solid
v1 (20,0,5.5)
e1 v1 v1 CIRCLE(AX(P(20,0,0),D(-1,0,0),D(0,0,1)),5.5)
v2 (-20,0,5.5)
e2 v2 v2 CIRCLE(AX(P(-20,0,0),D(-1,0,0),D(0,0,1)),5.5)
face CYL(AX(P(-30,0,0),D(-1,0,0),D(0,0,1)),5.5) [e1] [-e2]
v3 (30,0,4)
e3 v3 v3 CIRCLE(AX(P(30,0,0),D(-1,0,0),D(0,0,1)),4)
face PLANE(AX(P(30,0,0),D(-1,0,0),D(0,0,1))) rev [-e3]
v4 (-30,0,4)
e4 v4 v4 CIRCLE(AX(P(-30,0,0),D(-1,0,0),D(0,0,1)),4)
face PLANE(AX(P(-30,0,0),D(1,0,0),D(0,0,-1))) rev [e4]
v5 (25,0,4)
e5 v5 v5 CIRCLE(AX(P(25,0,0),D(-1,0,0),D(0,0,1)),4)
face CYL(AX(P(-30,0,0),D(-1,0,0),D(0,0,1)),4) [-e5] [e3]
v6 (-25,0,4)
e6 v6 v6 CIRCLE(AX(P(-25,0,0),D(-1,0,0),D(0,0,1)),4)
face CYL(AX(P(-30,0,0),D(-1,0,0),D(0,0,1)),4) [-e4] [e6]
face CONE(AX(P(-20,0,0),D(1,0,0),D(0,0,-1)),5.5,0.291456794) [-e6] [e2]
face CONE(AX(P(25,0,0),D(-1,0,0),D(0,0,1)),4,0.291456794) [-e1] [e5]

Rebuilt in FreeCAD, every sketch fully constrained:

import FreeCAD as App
import Part
import Sketcher
Q = App.Units.Quantity

doc = App.newDocument("Part")
body = doc.addObject("PartDesign::Body", "Body")

# Sketch on XZ plane
sketch1 = body.newObject("Sketcher::SketchObject", "Sketch")
sketch1.AttachmentSupport = (doc.getObject("XZ_Plane"), [""])
sketch1.MapMode = "FlatFace"
sketch1.addGeometry(Part.LineSegment(App.Vector(-30, 0, 0), App.Vector(30, 0, 0)), False)
sketch1.addGeometry(Part.LineSegment(App.Vector(30, 0, 0), App.Vector(30, -4, 0)), False)
sketch1.addGeometry(Part.LineSegment(App.Vector(30, -4, 0), App.Vector(25, -4, 0)), False)
sketch1.addGeometry(Part.LineSegment(App.Vector(25, -4, 0), App.Vector(20, -5.5, 0)), False)
sketch1.addGeometry(Part.LineSegment(App.Vector(20, -5.5, 0), App.Vector(-20, -5.5, 0)), False)
sketch1.addGeometry(Part.LineSegment(App.Vector(-20, -5.5, 0), App.Vector(-25, -4, 0)), False)
sketch1.addGeometry(Part.LineSegment(App.Vector(-25, -4, 0), App.Vector(-30, -4, 0)), False)
sketch1.addGeometry(Part.LineSegment(App.Vector(-30, -4, 0), App.Vector(-30, 0, 0)), False)
sketch1.addConstraint(Sketcher.Constraint("Coincident", 0, 2, 1, 1))
sketch1.addConstraint(Sketcher.Constraint("Coincident", 1, 2, 2, 1))
sketch1.addConstraint(Sketcher.Constraint("Coincident", 2, 2, 3, 1))
sketch1.addConstraint(Sketcher.Constraint("Coincident", 3, 2, 4, 1))
sketch1.addConstraint(Sketcher.Constraint("Coincident", 4, 2, 5, 1))
sketch1.addConstraint(Sketcher.Constraint("Coincident", 5, 2, 6, 1))
sketch1.addConstraint(Sketcher.Constraint("Coincident", 6, 2, 7, 1))
sketch1.addConstraint(Sketcher.Constraint("Coincident", 7, 2, 0, 1))
sketch1.addConstraint(Sketcher.Constraint("Horizontal", 0))
sketch1.addConstraint(Sketcher.Constraint("Vertical", 1))
sketch1.addConstraint(Sketcher.Constraint("Horizontal", 2))
sketch1.addConstraint(Sketcher.Constraint("Horizontal", 4))
sketch1.addConstraint(Sketcher.Constraint("Horizontal", 6))
sketch1.addConstraint(Sketcher.Constraint("Vertical", 7))
sketch1.addConstraint(Sketcher.Constraint("Symmetric", 0, 2, 7, 2, -1, 1))
sketch1.addConstraint(Sketcher.Constraint("Symmetric", 2, 2, 5, 2, -2))
sketch1.addConstraint(Sketcher.Constraint("Equal", 3, 5))
sketch1.addConstraint(Sketcher.Constraint("DistanceX", 0, 1, 0, 2, Q("60 mm")))
sketch1.addConstraint(Sketcher.Constraint("DistanceX", 2, 2, 2, 1, Q("5 mm")))
sketch1.addConstraint(Sketcher.Constraint("DistanceX", 4, 2, 4, 1, Q("40 mm")))
sketch1.addConstraint(Sketcher.Constraint("DistanceY", 1, 2, 1, 1, Q("4 mm")))
sketch1.addConstraint(Sketcher.Constraint("DistanceY", 3, 2, -1, 1, Q("5.5 mm")))
revolution = body.newObject("PartDesign::Revolution", "Revolution")
revolution.Profile = sketch1
revolution.ReferenceAxis = (sketch1, ["H_Axis"])
revolution.Angle = 360

doc.recompute()
